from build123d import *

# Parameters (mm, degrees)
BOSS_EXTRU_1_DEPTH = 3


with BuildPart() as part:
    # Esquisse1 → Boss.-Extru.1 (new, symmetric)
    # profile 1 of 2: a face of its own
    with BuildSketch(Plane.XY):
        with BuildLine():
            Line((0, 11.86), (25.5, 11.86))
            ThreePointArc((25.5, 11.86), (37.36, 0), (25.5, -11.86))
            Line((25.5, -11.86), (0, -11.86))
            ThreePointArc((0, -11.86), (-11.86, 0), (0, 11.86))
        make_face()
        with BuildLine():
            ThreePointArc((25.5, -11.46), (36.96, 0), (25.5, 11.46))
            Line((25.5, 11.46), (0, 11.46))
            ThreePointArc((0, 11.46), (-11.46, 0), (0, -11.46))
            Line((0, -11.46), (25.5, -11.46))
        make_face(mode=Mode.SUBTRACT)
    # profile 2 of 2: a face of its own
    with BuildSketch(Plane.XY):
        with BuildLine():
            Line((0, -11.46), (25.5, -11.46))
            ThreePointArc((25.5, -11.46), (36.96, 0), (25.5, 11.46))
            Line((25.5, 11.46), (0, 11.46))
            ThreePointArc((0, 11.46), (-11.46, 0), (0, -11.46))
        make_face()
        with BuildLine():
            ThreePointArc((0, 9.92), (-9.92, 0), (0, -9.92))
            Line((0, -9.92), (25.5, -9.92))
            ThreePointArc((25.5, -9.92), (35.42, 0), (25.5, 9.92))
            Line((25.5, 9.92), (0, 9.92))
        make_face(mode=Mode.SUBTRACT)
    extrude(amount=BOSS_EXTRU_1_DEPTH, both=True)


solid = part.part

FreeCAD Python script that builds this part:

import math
import FreeCAD as App
import Part
import Sketcher
from FreeCAD import Vector

doc = App.newDocument("Part")
params = doc.addObject("Spreadsheet::Sheet", "Params")
for row, (alias, value) in enumerate([
    ("sketch1_radius", "11.86 mm"),
    ("sketch1_radius2", "9.92 mm"),
    ("sketch1_width", "25.5 mm"),
    ("pad1_length", "6 mm"),
], start=1):
    params.set(f"A{row}", alias)
    params.set(f"B{row}", "=" + value)
    params.setAlias(f"B{row}", alias)

body = doc.addObject("PartDesign::Body", "Body")

# Sketch on XY plane
sketch1 = body.newObject("Sketcher::SketchObject", "Sketch")
sketch1.AttachmentSupport = (doc.getObject("XY_Plane"), [""])
sketch1.MapMode = "FlatFace"
sketch1.addGeometry(Part.LineSegment(Vector(25.5, 11.86, 0), Vector(0, 11.86, 0)), False)
sketch1.addGeometry(Part.ArcOfCircle(Part.Circle(Vector(0, 0, 0), Vector(0, 0, 1), 11.86), math.radians(90), math.radians(270)), False)
sketch1.addGeometry(Part.LineSegment(Vector(0, -11.86, 0), Vector(25.5, -11.86, 0)), False)
sketch1.addGeometry(Part.ArcOfCircle(Part.Circle(Vector(25.5, 0, 0), Vector(0, 0, 1), 11.86), math.radians(-90), math.radians(90)), False)
sketch1.addGeometry(Part.LineSegment(Vector(0, 9.92, 0), Vector(25.5, 9.92, 0)), False)
sketch1.addGeometry(Part.ArcOfCircle(Part.Circle(Vector(25.5, 0, 0), Vector(0, 0, 1), 9.92), math.radians(-90), math.radians(90)), False)
sketch1.addGeometry(Part.LineSegment(Vector(25.5, -9.92, 0), Vector(0, -9.92, 0)), False)
sketch1.addGeometry(Part.ArcOfCircle(Part.Circle(Vector(0, 0, 0), Vector(0, 0, 1), 9.92), math.radians(90), math.radians(270)), False)
sketch1.addConstraint(Sketcher.Constraint("Tangent", 0, 2, 1, 1))
sketch1.addConstraint(Sketcher.Constraint("Tangent", 1, 2, 2, 1))
sketch1.addConstraint(Sketcher.Constraint("Tangent", 2, 2, 3, 1))
sketch1.addConstraint(Sketcher.Constraint("Tangent", 3, 2, 0, 1))
sketch1.addConstraint(Sketcher.Constraint("Tangent", 4, 2, 5, 2))
sketch1.addConstraint(Sketcher.Constraint("Tangent", 5, 1, 6, 1))
sketch1.addConstraint(Sketcher.Constraint("Tangent", 6, 2, 7, 2))
sketch1.addConstraint(Sketcher.Constraint("Tangent", 7, 1, 4, 1))
sketch1.addConstraint(Sketcher.Constraint("Horizontal", 0))
sketch1.addConstraint(Sketcher.Constraint("Horizontal", 2))
sketch1.addConstraint(Sketcher.Constraint("Horizontal", 4))
sketch1.addConstraint(Sketcher.Constraint("Horizontal", 6))
sketch1.addConstraint(Sketcher.Constraint("Coincident", 1, 3, -1, 1))
sketch1.addConstraint(Sketcher.Constraint("Coincident", 7, 3, -1, 1))
sketch1.addConstraint(Sketcher.Constraint("Vertical", 5, 3, 2, 2))
sketch1.addConstraint(Sketcher.Constraint("Radius", 1, 11.86))
sketch1.addConstraint(Sketcher.Constraint("Radius", 5, 9.92))
sketch1.addConstraint(Sketcher.Constraint("DistanceX", 0, 2, 0, 1, 25.5))
sketch1.setExpression("Constraints[15]", "Params.sketch1_radius")
sketch1.setExpression("Constraints[16]", "Params.sketch1_radius2")
sketch1.setExpression("Constraints[17]", "Params.sketch1_width")
pad1 = body.newObject("PartDesign::Pad", "Pad")
pad1.Profile = sketch1
pad1.setExpression("Length", "Params.pad1_length")
pad1.Midplane = True

doc.recompute()
